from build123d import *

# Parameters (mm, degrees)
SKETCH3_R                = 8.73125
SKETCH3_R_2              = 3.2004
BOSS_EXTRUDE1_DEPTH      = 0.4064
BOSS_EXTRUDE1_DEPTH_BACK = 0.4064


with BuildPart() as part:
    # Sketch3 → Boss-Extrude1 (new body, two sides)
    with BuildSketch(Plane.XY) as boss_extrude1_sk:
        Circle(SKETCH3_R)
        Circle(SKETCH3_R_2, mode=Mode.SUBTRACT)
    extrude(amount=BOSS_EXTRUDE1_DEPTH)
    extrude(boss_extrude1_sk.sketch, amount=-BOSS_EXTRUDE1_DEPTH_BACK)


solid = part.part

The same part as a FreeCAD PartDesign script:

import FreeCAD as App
import Part
import Sketcher

V = App.Vector
Q = App.Units.Quantity

doc = App.newDocument("Part")
params = doc.addObject("Spreadsheet::Sheet", "Params")
for row, (alias, value) in enumerate([
    ("sketch1_diameter", "0.6875 in"),
    ("sketch1_diameter2", "0.252 in"),
    ("pad1_length", "0.016 in"),
    ("pad1_length2", "0.016 in"),
], start=1):
    params.set(f"A{row}", alias)
    params.set(f"B{row}", "=" + value)
    params.setAlias(f"B{row}", alias)

body = doc.addObject("PartDesign::Body", "Body")

sketch1 = doc.addObject("Sketcher::SketchObject", "Sketch")
body.addObject(sketch1)
sketch1.AttachmentSupport = (doc.XY_Plane, [""])
sketch1.MapMode = "FlatFace"
sketch1.addGeometry(Part.Circle(V(0, 0, 0), V(0, 0, 1), 8.73125), False)
sketch1.addGeometry(Part.Circle(V(0, 0, 0), V(0, 0, 1), 3.2004), False)
sketch1.addConstraint(Sketcher.Constraint("Coincident", 0, 3, -1, 1))
sketch1.addConstraint(Sketcher.Constraint("Coincident", 1, 3, -1, 1))
sketch1.addConstraint(Sketcher.Constraint("Diameter", 0, Q("0.6875 in")))
sketch1.addConstraint(Sketcher.Constraint("Diameter", 1, Q("0.252 in")))
sketch1.setExpression("Constraints[2]", "Params.sketch1_diameter")
sketch1.setExpression("Constraints[3]", "Params.sketch1_diameter2")
pad1 = doc.addObject("PartDesign::Pad", "Pad")
body.addObject(pad1)
pad1.Profile = sketch1
pad1.Type = "TwoLengths"
pad1.setExpression("Length", "Params.pad1_length")
pad1.setExpression("Length2", "Params.pad1_length2")

doc.recompute()
